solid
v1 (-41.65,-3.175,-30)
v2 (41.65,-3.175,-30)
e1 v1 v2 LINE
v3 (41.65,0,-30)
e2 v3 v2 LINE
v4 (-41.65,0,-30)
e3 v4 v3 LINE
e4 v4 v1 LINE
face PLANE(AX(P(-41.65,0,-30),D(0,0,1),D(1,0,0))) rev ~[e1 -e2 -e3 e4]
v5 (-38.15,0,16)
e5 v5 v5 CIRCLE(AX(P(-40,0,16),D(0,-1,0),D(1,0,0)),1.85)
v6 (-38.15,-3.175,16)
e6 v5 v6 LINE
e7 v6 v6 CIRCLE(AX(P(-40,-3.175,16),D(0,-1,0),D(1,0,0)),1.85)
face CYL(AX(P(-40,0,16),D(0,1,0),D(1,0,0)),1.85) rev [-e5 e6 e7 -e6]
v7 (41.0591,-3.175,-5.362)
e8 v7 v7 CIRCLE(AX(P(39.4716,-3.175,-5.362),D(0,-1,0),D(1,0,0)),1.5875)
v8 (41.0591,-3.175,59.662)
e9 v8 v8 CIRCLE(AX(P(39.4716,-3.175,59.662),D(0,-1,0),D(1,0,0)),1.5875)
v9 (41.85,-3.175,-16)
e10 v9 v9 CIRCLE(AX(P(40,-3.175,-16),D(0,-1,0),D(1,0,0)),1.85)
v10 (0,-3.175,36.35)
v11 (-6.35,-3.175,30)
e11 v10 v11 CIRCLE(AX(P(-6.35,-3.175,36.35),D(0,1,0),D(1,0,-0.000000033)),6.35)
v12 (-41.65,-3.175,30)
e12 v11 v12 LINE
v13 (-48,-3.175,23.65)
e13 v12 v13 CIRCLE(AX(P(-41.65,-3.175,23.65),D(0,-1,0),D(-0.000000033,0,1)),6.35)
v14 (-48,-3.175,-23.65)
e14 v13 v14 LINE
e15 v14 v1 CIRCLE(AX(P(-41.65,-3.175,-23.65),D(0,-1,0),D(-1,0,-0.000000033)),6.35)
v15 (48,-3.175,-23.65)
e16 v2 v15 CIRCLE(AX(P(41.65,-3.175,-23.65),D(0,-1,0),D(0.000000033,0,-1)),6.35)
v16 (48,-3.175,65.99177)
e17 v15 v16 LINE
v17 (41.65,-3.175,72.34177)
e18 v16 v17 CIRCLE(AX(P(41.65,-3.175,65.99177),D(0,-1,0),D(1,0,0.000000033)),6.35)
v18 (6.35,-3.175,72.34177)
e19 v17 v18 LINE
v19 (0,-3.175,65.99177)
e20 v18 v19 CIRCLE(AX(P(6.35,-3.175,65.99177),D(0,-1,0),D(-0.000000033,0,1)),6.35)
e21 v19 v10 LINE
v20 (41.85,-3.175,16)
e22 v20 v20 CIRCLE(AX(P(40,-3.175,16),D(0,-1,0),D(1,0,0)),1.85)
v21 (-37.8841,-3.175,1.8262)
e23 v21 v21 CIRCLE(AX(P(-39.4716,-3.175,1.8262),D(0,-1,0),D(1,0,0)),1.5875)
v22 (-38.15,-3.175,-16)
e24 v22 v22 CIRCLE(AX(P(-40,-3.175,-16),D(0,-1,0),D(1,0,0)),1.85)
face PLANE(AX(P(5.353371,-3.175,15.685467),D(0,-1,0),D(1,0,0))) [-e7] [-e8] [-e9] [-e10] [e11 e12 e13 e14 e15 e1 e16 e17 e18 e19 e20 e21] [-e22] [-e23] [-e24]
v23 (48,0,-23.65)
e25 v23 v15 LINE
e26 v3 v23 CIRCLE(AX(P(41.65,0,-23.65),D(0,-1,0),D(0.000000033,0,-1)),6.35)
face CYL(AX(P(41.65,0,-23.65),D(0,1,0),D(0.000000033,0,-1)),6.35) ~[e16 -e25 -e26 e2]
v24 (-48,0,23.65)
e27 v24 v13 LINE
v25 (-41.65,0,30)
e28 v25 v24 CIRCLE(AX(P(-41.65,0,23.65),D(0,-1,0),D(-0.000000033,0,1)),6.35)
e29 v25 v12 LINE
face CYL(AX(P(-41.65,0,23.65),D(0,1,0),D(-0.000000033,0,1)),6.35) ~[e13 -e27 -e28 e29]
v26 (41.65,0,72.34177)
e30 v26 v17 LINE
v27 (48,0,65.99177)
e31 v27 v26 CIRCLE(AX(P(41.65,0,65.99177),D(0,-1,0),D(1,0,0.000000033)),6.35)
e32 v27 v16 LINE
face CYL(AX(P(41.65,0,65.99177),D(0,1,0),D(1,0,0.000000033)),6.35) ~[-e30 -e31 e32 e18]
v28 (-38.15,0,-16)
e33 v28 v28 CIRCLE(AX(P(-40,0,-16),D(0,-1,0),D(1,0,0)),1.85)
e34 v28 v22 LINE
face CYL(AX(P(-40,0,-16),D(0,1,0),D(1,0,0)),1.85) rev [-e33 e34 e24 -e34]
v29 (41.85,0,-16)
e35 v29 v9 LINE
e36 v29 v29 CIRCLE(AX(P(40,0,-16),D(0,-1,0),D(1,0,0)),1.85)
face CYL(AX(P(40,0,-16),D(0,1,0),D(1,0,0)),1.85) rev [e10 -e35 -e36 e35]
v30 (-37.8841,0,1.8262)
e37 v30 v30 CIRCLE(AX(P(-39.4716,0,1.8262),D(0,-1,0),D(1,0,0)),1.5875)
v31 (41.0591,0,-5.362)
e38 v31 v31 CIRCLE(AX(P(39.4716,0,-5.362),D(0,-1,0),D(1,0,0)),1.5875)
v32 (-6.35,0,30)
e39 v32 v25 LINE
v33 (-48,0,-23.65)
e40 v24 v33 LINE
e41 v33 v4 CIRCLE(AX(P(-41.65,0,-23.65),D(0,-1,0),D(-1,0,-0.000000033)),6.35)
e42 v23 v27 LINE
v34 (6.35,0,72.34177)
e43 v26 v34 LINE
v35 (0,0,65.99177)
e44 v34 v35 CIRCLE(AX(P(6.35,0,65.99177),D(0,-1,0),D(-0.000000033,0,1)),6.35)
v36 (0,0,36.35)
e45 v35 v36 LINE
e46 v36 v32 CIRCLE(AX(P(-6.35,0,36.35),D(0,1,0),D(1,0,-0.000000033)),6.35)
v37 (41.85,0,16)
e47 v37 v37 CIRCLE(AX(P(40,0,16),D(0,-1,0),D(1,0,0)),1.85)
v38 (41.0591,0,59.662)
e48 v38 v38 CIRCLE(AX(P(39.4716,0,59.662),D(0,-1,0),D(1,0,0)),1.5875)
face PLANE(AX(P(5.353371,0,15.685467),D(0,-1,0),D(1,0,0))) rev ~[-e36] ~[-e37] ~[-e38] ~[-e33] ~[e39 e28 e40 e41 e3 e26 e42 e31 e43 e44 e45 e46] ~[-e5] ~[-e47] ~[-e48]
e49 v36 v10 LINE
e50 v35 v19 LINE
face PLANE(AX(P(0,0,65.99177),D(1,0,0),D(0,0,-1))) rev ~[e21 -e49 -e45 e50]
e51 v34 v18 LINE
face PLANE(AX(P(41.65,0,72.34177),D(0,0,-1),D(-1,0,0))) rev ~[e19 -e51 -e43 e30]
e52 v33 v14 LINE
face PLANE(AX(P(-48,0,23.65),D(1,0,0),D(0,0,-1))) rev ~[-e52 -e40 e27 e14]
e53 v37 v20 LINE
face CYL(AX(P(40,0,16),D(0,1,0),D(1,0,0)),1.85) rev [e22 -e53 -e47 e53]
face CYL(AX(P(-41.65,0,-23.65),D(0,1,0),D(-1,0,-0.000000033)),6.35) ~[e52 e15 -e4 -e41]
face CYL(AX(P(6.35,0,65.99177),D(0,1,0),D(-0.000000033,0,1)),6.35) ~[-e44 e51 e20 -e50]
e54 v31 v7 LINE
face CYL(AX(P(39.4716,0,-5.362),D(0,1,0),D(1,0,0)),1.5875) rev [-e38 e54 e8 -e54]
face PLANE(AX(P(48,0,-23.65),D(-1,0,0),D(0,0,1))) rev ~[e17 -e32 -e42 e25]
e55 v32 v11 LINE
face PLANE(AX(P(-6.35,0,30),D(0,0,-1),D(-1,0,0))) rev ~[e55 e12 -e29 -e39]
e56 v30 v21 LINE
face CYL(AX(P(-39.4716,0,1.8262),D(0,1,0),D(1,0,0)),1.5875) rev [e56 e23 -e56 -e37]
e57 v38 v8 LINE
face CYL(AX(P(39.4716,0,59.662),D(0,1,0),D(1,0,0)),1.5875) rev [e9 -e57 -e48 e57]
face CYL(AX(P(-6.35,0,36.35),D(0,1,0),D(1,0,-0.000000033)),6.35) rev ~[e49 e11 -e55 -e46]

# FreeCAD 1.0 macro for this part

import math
import FreeCAD as App
import Part
import Sketcher

doc = App.newDocument("Part")
params = doc.addObject("Spreadsheet::Sheet", "Params")
for row, (alias, value) in enumerate([
    ("sketch1_diameter", "3.7 mm"),
    ("sketch1_radius", "6.35 mm"),
    ("sketch1_width", "83.3 mm"),
    ("sketch1_height", "47.3 mm"),
    ("pad1_length", "3.175 mm"),
], start=1):
    params.set(f"A{row}", alias)
    params.set(f"B{row}", "=" + value)
    params.setAlias(f"B{row}", alias)

body = doc.addObject("PartDesign::Body", "Body")

# Sketch on XZ plane
sketch1 = body.newObject("Sketcher::SketchObject", "Sketch")
sketch1.AttachmentSupport = (doc.getObject("XZ_Plane"), [""])
sketch1.MapMode = "FlatFace"
sketch1.addGeometry(Part.ArcOfCircle(Part.Circle(App.Vector(-41.65, -23.65, 0), App.Vector(0, 0, 1), 6.35), math.radians(-179.999998), math.radians(-90.000002)), False)
sketch1.addGeometry(Part.LineSegment(App.Vector(-41.65, -30, 0), App.Vector(41.65, -30, 0)), False)
sketch1.addGeometry(Part.ArcOfCircle(Part.Circle(App.Vector(41.65, -23.65, 0), App.Vector(0, 0, 1), 6.35), math.radians(-89.999998), math.radians(-0.000002)), False)
sketch1.addGeometry(Part.LineSegment(App.Vector(48, -23.65, 0), App.Vector(48, 65.99177, 0)), False)
sketch1.addGeometry(Part.ArcOfCircle(Part.Circle(App.Vector(41.65, 65.99177, 0), App.Vector(0, 0, 1), 6.35), math.radians(0.000002), math.radians(89.999998)), False)
sketch1.addGeometry(Part.LineSegment(App.Vector(41.65, 72.34177, 0), App.Vector(6.35, 72.34177, 0)), False)
sketch1.addGeometry(Part.ArcOfCircle(Part.Circle(App.Vector(6.35, 65.99177, 0), App.Vector(0, 0, 1), 6.35), math.radians(90.000002), math.radians(179.999998)), False)
sketch1.addGeometry(Part.LineSegment(App.Vector(0, 65.99177, 0), App.Vector(0, 36.35, 0)), False)
sketch1.addGeometry(Part.ArcOfCircle(Part.Circle(App.Vector(-6.35, 36.35, 0), App.Vector(0, 0, 1), 6.35), math.radians(-89.999998), math.radians(-0.000002)), False)
sketch1.addGeometry(Part.LineSegment(App.Vector(-6.35, 30, 0), App.Vector(-41.65, 30, 0)), False)
sketch1.addGeometry(Part.ArcOfCircle(Part.Circle(App.Vector(-41.65, 23.65, 0), App.Vector(0, 0, 1), 6.35), math.radians(90.000002), math.radians(179.999998)), False)
sketch1.addGeometry(Part.LineSegment(App.Vector(-48, 23.65, 0), App.Vector(-48, -23.65, 0)), False)
sketch1.addGeometry(Part.Circle(App.Vector(-40, -16, 0), App.Vector(0, 0, 1), 1.85), False)
sketch1.addGeometry(Part.Circle(App.Vector(-39.4716, 1.8262, 0), App.Vector(0, 0, 1), 1.5875), False)
sketch1.addGeometry(Part.Circle(App.Vector(-40, 16, 0), App.Vector(0, 0, 1), 1.85), False)
sketch1.addGeometry(Part.Circle(App.Vector(40, -16, 0), App.Vector(0, 0, 1), 1.85), False)
sketch1.addGeometry(Part.Circle(App.Vector(39.4716, -5.362, 0), App.Vector(0, 0, 1), 1.5875), False)
sketch1.addGeometry(Part.Circle(App.Vector(40, 16, 0), App.Vector(0, 0, 1), 1.85), False)
sketch1.addGeometry(Part.Circle(App.Vector(39.4716, 59.662, 0), App.Vector(0, 0, 1), 1.5875), False)
sketch1.addConstraint(Sketcher.Constraint("Tangent", 0, 2, 1, 1))
sketch1.addConstraint(Sketcher.Constraint("Tangent", 1, 2, 2, 1))
sketch1.addConstraint(Sketcher.Constraint("Tangent", 2, 2, 3, 1))
sketch1.addConstraint(Sketcher.Constraint("Tangent", 3, 2, 4, 1))
sketch1.addConstraint(Sketcher.Constraint("Tangent", 4, 2, 5, 1))
sketch1.addConstraint(Sketcher.Constraint("Tangent", 5, 2, 6, 1))
sketch1.addConstraint(Sketcher.Constraint("Tangent", 6, 2, 7, 1))
sketch1.addConstraint(Sketcher.Constraint("Tangent", 7, 2, 8, 2))
sketch1.addConstraint(Sketcher.Constraint("Tangent", 8, 1, 9, 1))
sketch1.addConstraint(Sketcher.Constraint("Tangent", 9, 2, 10, 1))
sketch1.addConstraint(Sketcher.Constraint("Tangent", 10, 2, 11, 1))
sketch1.addConstraint(Sketcher.Constraint("Tangent", 11, 2, 0, 1))
sketch1.addConstraint(Sketcher.Constraint("Horizontal", 1))
sketch1.addConstraint(Sketcher.Constraint("Vertical", 3))
sketch1.addConstraint(Sketcher.Constraint("Horizontal", 5))
sketch1.addConstraint(Sketcher.Constraint("Vertical", 7))
sketch1.addConstraint(Sketcher.Constraint("Horizontal", 9))
sketch1.addConstraint(Sketcher.Constraint("Vertical", 11))
sketch1.addConstraint(Sketcher.Constraint("Equal", 0, 2))
sketch1.addConstraint(Sketcher.Constraint("Equal", 2, 4))
sketch1.addConstraint(Sketcher.Constraint("Equal", 4, 6))
sketch1.addConstraint(Sketcher.Constraint("Equal", 6, 8))
sketch1.addConstraint(Sketcher.Constraint("Equal", 8, 10))
sketch1.addConstraint(Sketcher.Constraint("Equal", 12, 14))
sketch1.addConstraint(Sketcher.Constraint("Equal", 14, 15))
sketch1.addConstraint(Sketcher.Constraint("Equal", 13, 16))
sketch1.addConstraint(Sketcher.Constraint("Equal", 15, 17))
sketch1.addConstraint(Sketcher.Constraint("Equal", 16, 18))
sketch1.addConstraint(Sketcher.Constraint("Symmetric", 2, 3, 10, 3, -1, 1))
sketch1.addConstraint(Sketcher.Constraint("Symmetric", 14, 3, 15, 3, -1, 1))
sketch1.addConstraint(Sketcher.Constraint("Symmetric", 12, 3, 17, 3, -1, 1))
sketch1.addConstraint(Sketcher.Constraint("Symmetric", 12, 3, 15, 3, -2))
sketch1.addConstraint(Sketcher.Constraint("PointOnObject", 6, 2, -2))
sketch1.addConstraint(Sketcher.Constraint("Vertical", 16, 3, 18, 3))
sketch1.addConstraint(Sketcher.Constraint("Diameter", 12, 3.7))
sketch1.addConstraint(Sketcher.Constraint("Radius", 0, 6.35))
sketch1.addConstraint(Sketcher.Constraint("Diameter", 13, 3.175))
sketch1.addConstraint(Sketcher.Constraint("DistanceX", 1, 1, 1, 2, 83.3))
sketch1.addConstraint(Sketcher.Constraint("DistanceY", 11, 2, 11, 1, 47.3))
sketch1.addConstraint(Sketcher.Constraint("DistanceX", 12, 3, -1, 1, 40.0))
sketch1.addConstraint(Sketcher.Constraint("DistanceY", 12, 3, -1, 1, 16.0))
sketch1.addConstraint(Sketcher.Constraint("DistanceY", 16, 3, -1, 1, 5.362))
sketch1.addConstraint(Sketcher.Constraint("DistanceY", -1, 1, 18, 3, 59.662))
sketch1.addConstraint(Sketcher.Constraint("DistanceY", 3, 1, 3, 2, 89.64177))
sketch1.addConstraint(Sketcher.Constraint("DistanceX", 13, 3, -1, 1, 39.4716))
sketch1.addConstraint(Sketcher.Constraint("DistanceY", -1, 1, 13, 3, 1.8262))
sketch1.addConstraint(Sketcher.Constraint("DistanceX", -1, 1, 16, 3, 39.4716))
sketch1.setExpression("Constraints[34]", "Params.sketch1_diameter")
sketch1.setExpression("Constraints[35]", "Params.sketch1_radius")
sketch1.setExpression("Constraints[37]", "Params.sketch1_width")
sketch1.setExpression("Constraints[38]", "Params.sketch1_height")
pad1 = body.newObject("PartDesign::Pad", "Pad")
pad1.Profile = sketch1
pad1.setExpression("Length", "Params.pad1_length")

doc.recompute()
